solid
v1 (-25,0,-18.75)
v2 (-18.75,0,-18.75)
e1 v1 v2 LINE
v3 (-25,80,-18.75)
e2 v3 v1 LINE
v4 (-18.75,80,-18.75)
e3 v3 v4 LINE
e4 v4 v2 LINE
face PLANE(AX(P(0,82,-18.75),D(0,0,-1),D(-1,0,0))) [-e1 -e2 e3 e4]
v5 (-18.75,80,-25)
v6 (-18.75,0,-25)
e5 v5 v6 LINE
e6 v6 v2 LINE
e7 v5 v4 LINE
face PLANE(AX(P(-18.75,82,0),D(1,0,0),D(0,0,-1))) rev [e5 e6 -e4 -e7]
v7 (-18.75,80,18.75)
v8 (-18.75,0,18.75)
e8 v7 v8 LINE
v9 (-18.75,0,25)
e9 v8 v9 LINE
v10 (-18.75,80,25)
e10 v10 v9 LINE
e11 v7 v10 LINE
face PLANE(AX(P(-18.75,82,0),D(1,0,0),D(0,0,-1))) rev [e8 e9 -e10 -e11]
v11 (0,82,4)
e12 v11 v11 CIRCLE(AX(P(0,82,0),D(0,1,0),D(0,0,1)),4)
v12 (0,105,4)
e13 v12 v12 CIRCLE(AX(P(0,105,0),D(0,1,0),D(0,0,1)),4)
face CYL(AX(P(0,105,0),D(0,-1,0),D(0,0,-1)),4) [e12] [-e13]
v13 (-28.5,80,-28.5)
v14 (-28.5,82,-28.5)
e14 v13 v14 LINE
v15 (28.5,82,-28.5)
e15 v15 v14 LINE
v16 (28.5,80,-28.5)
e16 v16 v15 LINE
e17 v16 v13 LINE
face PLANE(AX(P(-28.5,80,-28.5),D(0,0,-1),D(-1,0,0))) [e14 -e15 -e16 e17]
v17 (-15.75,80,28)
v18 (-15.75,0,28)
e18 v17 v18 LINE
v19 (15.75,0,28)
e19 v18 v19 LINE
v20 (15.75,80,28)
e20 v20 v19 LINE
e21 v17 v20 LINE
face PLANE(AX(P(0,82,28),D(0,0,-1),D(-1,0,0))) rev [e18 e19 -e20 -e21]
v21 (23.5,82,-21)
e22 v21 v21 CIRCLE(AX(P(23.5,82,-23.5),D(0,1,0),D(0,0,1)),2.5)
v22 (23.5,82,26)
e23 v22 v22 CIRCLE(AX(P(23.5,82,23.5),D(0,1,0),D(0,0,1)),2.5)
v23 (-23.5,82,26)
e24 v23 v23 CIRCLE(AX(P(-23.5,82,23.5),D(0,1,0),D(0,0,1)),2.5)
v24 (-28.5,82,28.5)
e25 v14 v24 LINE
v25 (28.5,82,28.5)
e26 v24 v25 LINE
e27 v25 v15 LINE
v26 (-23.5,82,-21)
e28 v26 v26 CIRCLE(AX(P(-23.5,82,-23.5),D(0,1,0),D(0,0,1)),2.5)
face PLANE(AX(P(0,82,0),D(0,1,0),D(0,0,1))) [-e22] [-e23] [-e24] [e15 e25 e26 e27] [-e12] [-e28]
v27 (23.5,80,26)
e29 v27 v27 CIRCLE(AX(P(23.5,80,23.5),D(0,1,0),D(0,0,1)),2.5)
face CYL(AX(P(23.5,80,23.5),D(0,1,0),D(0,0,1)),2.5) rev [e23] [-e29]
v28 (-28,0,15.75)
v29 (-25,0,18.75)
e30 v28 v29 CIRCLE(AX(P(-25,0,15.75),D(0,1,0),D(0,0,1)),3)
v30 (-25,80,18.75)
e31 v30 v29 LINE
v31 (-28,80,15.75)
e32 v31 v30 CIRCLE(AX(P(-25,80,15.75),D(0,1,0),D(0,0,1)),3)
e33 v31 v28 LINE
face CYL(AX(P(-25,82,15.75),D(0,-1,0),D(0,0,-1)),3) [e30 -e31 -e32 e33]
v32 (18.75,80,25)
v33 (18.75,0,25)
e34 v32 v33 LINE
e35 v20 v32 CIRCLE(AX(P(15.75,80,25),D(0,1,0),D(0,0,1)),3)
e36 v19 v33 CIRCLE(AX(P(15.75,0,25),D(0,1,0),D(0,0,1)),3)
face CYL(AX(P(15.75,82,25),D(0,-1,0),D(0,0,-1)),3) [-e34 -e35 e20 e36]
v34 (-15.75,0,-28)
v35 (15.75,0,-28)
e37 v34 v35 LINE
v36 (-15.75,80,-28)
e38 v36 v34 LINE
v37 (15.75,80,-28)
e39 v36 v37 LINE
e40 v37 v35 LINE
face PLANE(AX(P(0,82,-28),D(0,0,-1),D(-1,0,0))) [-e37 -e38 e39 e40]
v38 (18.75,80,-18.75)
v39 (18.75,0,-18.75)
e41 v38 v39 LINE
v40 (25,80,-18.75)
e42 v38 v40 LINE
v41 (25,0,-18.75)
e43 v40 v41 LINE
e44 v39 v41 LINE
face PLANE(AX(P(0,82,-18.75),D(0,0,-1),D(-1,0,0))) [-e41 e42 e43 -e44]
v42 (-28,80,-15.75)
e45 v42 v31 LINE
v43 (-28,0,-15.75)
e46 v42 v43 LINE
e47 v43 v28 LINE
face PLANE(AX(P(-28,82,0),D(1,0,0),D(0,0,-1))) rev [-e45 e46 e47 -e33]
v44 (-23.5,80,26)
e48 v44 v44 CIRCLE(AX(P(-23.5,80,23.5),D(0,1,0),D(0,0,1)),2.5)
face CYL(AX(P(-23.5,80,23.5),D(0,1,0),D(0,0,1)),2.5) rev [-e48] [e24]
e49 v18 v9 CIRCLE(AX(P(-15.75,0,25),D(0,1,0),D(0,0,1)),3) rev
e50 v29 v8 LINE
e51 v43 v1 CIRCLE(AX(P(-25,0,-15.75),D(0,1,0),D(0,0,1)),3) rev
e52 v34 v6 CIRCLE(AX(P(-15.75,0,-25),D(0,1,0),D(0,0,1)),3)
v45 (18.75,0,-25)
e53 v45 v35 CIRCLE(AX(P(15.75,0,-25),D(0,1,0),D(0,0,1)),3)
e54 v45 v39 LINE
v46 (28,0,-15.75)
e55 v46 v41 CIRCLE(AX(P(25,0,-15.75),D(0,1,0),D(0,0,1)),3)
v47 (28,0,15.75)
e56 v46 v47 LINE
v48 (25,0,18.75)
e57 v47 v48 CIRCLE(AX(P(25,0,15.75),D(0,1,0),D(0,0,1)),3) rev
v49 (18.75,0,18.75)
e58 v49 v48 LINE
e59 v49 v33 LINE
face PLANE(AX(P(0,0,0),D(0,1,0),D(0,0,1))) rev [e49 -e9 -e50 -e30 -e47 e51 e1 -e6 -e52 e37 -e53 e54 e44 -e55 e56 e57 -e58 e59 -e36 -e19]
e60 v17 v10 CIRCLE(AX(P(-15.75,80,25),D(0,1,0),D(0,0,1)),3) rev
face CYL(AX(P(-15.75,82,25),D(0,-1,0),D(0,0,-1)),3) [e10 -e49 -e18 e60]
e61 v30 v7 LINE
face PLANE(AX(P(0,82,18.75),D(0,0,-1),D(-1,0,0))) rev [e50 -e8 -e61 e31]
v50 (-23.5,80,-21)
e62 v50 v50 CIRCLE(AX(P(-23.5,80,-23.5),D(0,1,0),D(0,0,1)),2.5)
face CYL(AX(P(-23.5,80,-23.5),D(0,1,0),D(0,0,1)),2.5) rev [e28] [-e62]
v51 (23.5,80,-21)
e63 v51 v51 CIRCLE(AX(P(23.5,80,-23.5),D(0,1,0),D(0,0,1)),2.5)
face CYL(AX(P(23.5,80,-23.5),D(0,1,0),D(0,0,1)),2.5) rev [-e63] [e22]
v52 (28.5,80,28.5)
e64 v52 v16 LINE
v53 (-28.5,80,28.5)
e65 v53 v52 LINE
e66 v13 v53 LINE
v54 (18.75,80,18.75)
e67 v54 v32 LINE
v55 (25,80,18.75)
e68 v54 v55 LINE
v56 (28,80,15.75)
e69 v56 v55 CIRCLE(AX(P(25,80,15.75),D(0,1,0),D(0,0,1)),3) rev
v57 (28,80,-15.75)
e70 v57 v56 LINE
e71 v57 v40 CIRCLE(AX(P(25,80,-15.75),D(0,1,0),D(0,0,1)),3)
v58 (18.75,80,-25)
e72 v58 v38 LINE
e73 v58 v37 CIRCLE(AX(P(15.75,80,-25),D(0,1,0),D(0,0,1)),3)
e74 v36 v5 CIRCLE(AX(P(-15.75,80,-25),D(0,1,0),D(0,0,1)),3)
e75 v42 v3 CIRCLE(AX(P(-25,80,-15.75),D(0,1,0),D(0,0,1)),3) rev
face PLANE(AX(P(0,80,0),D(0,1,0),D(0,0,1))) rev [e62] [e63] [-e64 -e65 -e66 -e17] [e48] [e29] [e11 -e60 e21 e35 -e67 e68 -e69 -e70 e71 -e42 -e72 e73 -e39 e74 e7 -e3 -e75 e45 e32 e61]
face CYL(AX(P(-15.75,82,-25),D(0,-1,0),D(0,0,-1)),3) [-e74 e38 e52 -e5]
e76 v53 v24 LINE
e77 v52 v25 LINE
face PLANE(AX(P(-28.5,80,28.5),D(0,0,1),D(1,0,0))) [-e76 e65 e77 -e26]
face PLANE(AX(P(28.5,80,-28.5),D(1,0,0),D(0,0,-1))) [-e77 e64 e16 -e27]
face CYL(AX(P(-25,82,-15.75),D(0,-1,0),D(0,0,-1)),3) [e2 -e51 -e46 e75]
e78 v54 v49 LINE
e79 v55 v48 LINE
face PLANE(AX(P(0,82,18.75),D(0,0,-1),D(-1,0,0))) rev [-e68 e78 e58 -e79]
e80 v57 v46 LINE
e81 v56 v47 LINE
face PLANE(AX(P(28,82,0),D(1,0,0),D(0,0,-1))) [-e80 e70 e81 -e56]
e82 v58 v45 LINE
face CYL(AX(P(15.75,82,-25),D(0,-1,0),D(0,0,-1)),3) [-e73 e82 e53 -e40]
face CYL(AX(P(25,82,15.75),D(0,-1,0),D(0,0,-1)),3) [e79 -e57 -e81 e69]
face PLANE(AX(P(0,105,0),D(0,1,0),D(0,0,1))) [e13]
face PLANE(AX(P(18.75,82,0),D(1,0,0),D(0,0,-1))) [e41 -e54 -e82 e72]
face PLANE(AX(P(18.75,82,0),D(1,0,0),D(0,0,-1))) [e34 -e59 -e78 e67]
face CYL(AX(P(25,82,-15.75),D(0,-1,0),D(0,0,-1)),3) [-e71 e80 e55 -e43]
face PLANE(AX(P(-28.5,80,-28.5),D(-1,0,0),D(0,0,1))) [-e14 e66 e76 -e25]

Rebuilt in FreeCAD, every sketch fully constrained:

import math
import FreeCAD as App
import Part
import Sketcher


def add_polygon(sketch, points):
    """Adds a closed chain of lines whose ends are joined by coincident constraints."""
    first, n = sketch.GeometryCount, len(points)
    for a, b in zip(points, points[1:] + points[:1]):
        sketch.addGeometry(Part.LineSegment(App.Vector(*a, 0), App.Vector(*b, 0)), False)
    for i in range(n):
        sketch.addConstraint(Sketcher.Constraint("Coincident", first + i, 2, first + (i + 1) % n, 1))

doc = App.newDocument("Part")
body = doc.addObject("PartDesign::Body", "Body")

sketch1 = body.newObject("Sketcher::SketchObject", "Sketch")
sketch1.AttachmentSupport = (doc.getObject("XZ_Plane"), [""])
sketch1.MapMode = "FlatFace"
sketch1.addGeometry([
    Part.ArcOfCircle(Part.Circle(App.Vector(-25, -15.8, 0), App.Vector(0, 0, 1), 3), math.radians(180), math.radians(270)),
    Part.LineSegment(App.Vector(-28, -15.8, 0), App.Vector(-28, 15.8, 0)),
    Part.ArcOfCircle(Part.Circle(App.Vector(-25, 15.8, 0), App.Vector(0, 0, 1), 3), math.radians(90), math.radians(180)),
    Part.LineSegment(App.Vector(-25, 18.8, 0), App.Vector(-18.8, 18.8, 0)),
    Part.LineSegment(App.Vector(-18.8, 18.8, 0), App.Vector(-18.8, 25, 0)),
    Part.ArcOfCircle(Part.Circle(App.Vector(-15.8, 25, 0), App.Vector(0, 0, 1), 3), math.radians(90), math.radians(180)),
    Part.LineSegment(App.Vector(-15.8, 28, 0), App.Vector(15.8, 28, 0)),
    Part.ArcOfCircle(Part.Circle(App.Vector(15.8, 25, 0), App.Vector(0, 0, 1), 3), math.radians(0), math.radians(90)),
    Part.LineSegment(App.Vector(18.8, 25, 0), App.Vector(18.8, 18.8, 0)),
    Part.LineSegment(App.Vector(18.8, 18.8, 0), App.Vector(25, 18.8, 0)),
    Part.ArcOfCircle(Part.Circle(App.Vector(25, 15.8, 0), App.Vector(0, 0, 1), 3), math.radians(0), math.radians(90)),
    Part.LineSegment(App.Vector(28, 15.8, 0), App.Vector(28, -15.8, 0)),
    Part.ArcOfCircle(Part.Circle(App.Vector(25, -15.8, 0), App.Vector(0, 0, 1), 3), math.radians(-90), math.radians(0)),
    Part.LineSegment(App.Vector(25, -18.8, 0), App.Vector(18.8, -18.8, 0)),
    Part.LineSegment(App.Vector(18.8, -18.8, 0), App.Vector(18.8, -25, 0)),
    Part.ArcOfCircle(Part.Circle(App.Vector(15.8, -25, 0), App.Vector(0, 0, 1), 3), math.radians(-90), math.radians(0)),
    Part.LineSegment(App.Vector(15.8, -28, 0), App.Vector(-15.8, -28, 0)),
    Part.ArcOfCircle(Part.Circle(App.Vector(-15.8, -25, 0), App.Vector(0, 0, 1), 3), math.radians(180), math.radians(270)),
    Part.LineSegment(App.Vector(-18.8, -25, 0), App.Vector(-18.8, -18.8, 0)),
    Part.LineSegment(App.Vector(-18.8, -18.8, 0), App.Vector(-25, -18.8, 0)),
], False)
sketch1.addConstraint([
    Sketcher.Constraint("Tangent", 0, 1, 1, 1),
    Sketcher.Constraint("Tangent", 1, 2, 2, 2),
    Sketcher.Constraint("Tangent", 2, 1, 3, 1),
    Sketcher.Constraint("Coincident", 3, 2, 4, 1),
    Sketcher.Constraint("Tangent", 4, 2, 5, 2),
    Sketcher.Constraint("Tangent", 5, 1, 6, 1),
    Sketcher.Constraint("Tangent", 6, 2, 7, 2),
    Sketcher.Constraint("Tangent", 7, 1, 8, 1),
    Sketcher.Constraint("Coincident", 8, 2, 9, 1),
    Sketcher.Constraint("Tangent", 9, 2, 10, 2),
    Sketcher.Constraint("Tangent", 10, 1, 11, 1),
    Sketcher.Constraint("Tangent", 11, 2, 12, 2),
    Sketcher.Constraint("Tangent", 12, 1, 13, 1),
    Sketcher.Constraint("Coincident", 13, 2, 14, 1),
    Sketcher.Constraint("Tangent", 14, 2, 15, 2),
    Sketcher.Constraint("Tangent", 15, 1, 16, 1),
    Sketcher.Constraint("Tangent", 16, 2, 17, 2),
    Sketcher.Constraint("Tangent", 17, 1, 18, 1),
    Sketcher.Constraint("Coincident", 18, 2, 19, 1),
    Sketcher.Constraint("Tangent", 19, 2, 0, 2),
    Sketcher.Constraint("Vertical", 1),
    Sketcher.Constraint("Horizontal", 3),
    Sketcher.Constraint("Vertical", 4),
    Sketcher.Constraint("Horizontal", 6),
    Sketcher.Constraint("Vertical", 8),
    Sketcher.Constraint("Horizontal", 9),
    Sketcher.Constraint("Vertical", 11),
    Sketcher.Constraint("Horizontal", 13),
    Sketcher.Constraint("Vertical", 14),
    Sketcher.Constraint("Horizontal", 16),
    Sketcher.Constraint("Vertical", 18),
    Sketcher.Constraint("Horizontal", 19),
    Sketcher.Constraint("Equal", 0, 2),
    Sketcher.Constraint("Equal", 2, 5),
    Sketcher.Constraint("Equal", 5, 7),
    Sketcher.Constraint("Equal", 7, 10),
    Sketcher.Constraint("Equal", 10, 12),
    Sketcher.Constraint("Equal", 12, 15),
    Sketcher.Constraint("Equal", 15, 17),
    Sketcher.Constraint("Symmetric", 0, 3, 10, 3, -1, 1),
    Sketcher.Constraint("Symmetric", 5, 3, 15, 3, -1, 1),
    Sketcher.Constraint("Symmetric", 3, 2, 8, 2, -2),
    Sketcher.Constraint("Symmetric", 13, 2, 18, 2, -2),
    Sketcher.Constraint("Equal", 16, 1),
    Sketcher.Constraint("Equal", 19, 4),
    Sketcher.Constraint("Radius", 0, 3.0),
    Sketcher.Constraint("DistanceX", 6, 1, 6, 2, 31.5),
    Sketcher.Constraint("DistanceX", 0, 3, -1, 1, 25.0),
])
pad1 = body.newObject("PartDesign::Pad", "Pad")
pad1.Profile = sketch1
pad1.Length = 82
pad1.Reversed = True

sketch2 = body.newObject("Sketcher::SketchObject", "Sketch001")
sketch2.AttachmentSupport = (doc.getObject("XZ_Plane"), [""])
sketch2.MapMode = "FlatFace"
sketch2.AttachmentOffset = App.Placement(App.Vector(0, 0, -82), App.Rotation())
add_polygon(sketch2, [(-28, -28), (-28, 28), (28, 28), (28, -28)])
sketch2.addConstraint([
    Sketcher.Constraint("Vertical", 0),
    Sketcher.Constraint("Horizontal", 1),
    Sketcher.Constraint("Vertical", 2),
    Sketcher.Constraint("Horizontal", 3),
    Sketcher.Constraint("Symmetric", 0, 2, 2, 2, -1, 1),
    Sketcher.Constraint("Equal", 3, 0),
    Sketcher.Constraint("DistanceX", 1, 1, 1, 2, 57.0),
])
pad2 = body.newObject("PartDesign::Pad", "Pad001")
pad2.Profile = sketch2
pad2.Length = 2

sketch3 = body.newObject("Sketcher::SketchObject", "Sketch002")
sketch3.AttachmentSupport = (doc.getObject("XZ_Plane"), [""])
sketch3.MapMode = "FlatFace"
sketch3.AttachmentOffset = App.Placement(App.Vector(0, 0, -82), App.Rotation())
sketch3.addGeometry([
    Part.Circle(App.Vector(23.5, -23.5, 0), App.Vector(0, 0, 1), 2.5),
    Part.Circle(App.Vector(-23.5, -23.5, 0), App.Vector(0, 0, 1), 2.5),
    Part.Circle(App.Vector(-23.5, 23.5, 0), App.Vector(0, 0, 1), 2.5),
    Part.Circle(App.Vector(23.5, 23.5, 0), App.Vector(0, 0, 1), 2.5),
], False)
sketch3.addConstraint([
    Sketcher.Constraint("Equal", 0, 1),
    Sketcher.Constraint("Equal", 1, 2),
    Sketcher.Constraint("Equal", 2, 3),
    Sketcher.Constraint("Symmetric", 0, 3, 2, 3, -1, 1),
    Sketcher.Constraint("Symmetric", 1, 3, 3, 3, -1, 1),
    Sketcher.Constraint("Symmetric", 0, 3, 1, 3, -2),
    Sketcher.Constraint("Diameter", 0, 5.0),
    Sketcher.Constraint("DistanceX", 1, 3, 0, 3, 47.0),
    Sketcher.Constraint("DistanceY", 1, 3, 2, 3, 47.0),
])
pocket1 = body.newObject("PartDesign::Pocket", "Pocket")
pocket1.Profile = sketch3
pocket1.Length = 2
pocket1.Reversed = True

sketch4 = body.newObject("Sketcher::SketchObject", "Sketch003")
sketch4.AttachmentSupport = (doc.getObject("XZ_Plane"), [""])
sketch4.MapMode = "FlatFace"
sketch4.AttachmentOffset = App.Placement(App.Vector(0, 0, -82), App.Rotation())
sketch4.addGeometry(Part.Circle(App.Vector(0, 0, 0), App.Vector(0, 0, 1), 4), False)
sketch4.addConstraint([
    Sketcher.Constraint("Coincident", 0, 3, -1, 1),
    Sketcher.Constraint("Diameter", 0, 8.0),
])
pad3 = body.newObject("PartDesign::Pad", "Pad002")
pad3.Profile = sketch4
pad3.Length = 23
pad3.Reversed = True

doc.recompute()
